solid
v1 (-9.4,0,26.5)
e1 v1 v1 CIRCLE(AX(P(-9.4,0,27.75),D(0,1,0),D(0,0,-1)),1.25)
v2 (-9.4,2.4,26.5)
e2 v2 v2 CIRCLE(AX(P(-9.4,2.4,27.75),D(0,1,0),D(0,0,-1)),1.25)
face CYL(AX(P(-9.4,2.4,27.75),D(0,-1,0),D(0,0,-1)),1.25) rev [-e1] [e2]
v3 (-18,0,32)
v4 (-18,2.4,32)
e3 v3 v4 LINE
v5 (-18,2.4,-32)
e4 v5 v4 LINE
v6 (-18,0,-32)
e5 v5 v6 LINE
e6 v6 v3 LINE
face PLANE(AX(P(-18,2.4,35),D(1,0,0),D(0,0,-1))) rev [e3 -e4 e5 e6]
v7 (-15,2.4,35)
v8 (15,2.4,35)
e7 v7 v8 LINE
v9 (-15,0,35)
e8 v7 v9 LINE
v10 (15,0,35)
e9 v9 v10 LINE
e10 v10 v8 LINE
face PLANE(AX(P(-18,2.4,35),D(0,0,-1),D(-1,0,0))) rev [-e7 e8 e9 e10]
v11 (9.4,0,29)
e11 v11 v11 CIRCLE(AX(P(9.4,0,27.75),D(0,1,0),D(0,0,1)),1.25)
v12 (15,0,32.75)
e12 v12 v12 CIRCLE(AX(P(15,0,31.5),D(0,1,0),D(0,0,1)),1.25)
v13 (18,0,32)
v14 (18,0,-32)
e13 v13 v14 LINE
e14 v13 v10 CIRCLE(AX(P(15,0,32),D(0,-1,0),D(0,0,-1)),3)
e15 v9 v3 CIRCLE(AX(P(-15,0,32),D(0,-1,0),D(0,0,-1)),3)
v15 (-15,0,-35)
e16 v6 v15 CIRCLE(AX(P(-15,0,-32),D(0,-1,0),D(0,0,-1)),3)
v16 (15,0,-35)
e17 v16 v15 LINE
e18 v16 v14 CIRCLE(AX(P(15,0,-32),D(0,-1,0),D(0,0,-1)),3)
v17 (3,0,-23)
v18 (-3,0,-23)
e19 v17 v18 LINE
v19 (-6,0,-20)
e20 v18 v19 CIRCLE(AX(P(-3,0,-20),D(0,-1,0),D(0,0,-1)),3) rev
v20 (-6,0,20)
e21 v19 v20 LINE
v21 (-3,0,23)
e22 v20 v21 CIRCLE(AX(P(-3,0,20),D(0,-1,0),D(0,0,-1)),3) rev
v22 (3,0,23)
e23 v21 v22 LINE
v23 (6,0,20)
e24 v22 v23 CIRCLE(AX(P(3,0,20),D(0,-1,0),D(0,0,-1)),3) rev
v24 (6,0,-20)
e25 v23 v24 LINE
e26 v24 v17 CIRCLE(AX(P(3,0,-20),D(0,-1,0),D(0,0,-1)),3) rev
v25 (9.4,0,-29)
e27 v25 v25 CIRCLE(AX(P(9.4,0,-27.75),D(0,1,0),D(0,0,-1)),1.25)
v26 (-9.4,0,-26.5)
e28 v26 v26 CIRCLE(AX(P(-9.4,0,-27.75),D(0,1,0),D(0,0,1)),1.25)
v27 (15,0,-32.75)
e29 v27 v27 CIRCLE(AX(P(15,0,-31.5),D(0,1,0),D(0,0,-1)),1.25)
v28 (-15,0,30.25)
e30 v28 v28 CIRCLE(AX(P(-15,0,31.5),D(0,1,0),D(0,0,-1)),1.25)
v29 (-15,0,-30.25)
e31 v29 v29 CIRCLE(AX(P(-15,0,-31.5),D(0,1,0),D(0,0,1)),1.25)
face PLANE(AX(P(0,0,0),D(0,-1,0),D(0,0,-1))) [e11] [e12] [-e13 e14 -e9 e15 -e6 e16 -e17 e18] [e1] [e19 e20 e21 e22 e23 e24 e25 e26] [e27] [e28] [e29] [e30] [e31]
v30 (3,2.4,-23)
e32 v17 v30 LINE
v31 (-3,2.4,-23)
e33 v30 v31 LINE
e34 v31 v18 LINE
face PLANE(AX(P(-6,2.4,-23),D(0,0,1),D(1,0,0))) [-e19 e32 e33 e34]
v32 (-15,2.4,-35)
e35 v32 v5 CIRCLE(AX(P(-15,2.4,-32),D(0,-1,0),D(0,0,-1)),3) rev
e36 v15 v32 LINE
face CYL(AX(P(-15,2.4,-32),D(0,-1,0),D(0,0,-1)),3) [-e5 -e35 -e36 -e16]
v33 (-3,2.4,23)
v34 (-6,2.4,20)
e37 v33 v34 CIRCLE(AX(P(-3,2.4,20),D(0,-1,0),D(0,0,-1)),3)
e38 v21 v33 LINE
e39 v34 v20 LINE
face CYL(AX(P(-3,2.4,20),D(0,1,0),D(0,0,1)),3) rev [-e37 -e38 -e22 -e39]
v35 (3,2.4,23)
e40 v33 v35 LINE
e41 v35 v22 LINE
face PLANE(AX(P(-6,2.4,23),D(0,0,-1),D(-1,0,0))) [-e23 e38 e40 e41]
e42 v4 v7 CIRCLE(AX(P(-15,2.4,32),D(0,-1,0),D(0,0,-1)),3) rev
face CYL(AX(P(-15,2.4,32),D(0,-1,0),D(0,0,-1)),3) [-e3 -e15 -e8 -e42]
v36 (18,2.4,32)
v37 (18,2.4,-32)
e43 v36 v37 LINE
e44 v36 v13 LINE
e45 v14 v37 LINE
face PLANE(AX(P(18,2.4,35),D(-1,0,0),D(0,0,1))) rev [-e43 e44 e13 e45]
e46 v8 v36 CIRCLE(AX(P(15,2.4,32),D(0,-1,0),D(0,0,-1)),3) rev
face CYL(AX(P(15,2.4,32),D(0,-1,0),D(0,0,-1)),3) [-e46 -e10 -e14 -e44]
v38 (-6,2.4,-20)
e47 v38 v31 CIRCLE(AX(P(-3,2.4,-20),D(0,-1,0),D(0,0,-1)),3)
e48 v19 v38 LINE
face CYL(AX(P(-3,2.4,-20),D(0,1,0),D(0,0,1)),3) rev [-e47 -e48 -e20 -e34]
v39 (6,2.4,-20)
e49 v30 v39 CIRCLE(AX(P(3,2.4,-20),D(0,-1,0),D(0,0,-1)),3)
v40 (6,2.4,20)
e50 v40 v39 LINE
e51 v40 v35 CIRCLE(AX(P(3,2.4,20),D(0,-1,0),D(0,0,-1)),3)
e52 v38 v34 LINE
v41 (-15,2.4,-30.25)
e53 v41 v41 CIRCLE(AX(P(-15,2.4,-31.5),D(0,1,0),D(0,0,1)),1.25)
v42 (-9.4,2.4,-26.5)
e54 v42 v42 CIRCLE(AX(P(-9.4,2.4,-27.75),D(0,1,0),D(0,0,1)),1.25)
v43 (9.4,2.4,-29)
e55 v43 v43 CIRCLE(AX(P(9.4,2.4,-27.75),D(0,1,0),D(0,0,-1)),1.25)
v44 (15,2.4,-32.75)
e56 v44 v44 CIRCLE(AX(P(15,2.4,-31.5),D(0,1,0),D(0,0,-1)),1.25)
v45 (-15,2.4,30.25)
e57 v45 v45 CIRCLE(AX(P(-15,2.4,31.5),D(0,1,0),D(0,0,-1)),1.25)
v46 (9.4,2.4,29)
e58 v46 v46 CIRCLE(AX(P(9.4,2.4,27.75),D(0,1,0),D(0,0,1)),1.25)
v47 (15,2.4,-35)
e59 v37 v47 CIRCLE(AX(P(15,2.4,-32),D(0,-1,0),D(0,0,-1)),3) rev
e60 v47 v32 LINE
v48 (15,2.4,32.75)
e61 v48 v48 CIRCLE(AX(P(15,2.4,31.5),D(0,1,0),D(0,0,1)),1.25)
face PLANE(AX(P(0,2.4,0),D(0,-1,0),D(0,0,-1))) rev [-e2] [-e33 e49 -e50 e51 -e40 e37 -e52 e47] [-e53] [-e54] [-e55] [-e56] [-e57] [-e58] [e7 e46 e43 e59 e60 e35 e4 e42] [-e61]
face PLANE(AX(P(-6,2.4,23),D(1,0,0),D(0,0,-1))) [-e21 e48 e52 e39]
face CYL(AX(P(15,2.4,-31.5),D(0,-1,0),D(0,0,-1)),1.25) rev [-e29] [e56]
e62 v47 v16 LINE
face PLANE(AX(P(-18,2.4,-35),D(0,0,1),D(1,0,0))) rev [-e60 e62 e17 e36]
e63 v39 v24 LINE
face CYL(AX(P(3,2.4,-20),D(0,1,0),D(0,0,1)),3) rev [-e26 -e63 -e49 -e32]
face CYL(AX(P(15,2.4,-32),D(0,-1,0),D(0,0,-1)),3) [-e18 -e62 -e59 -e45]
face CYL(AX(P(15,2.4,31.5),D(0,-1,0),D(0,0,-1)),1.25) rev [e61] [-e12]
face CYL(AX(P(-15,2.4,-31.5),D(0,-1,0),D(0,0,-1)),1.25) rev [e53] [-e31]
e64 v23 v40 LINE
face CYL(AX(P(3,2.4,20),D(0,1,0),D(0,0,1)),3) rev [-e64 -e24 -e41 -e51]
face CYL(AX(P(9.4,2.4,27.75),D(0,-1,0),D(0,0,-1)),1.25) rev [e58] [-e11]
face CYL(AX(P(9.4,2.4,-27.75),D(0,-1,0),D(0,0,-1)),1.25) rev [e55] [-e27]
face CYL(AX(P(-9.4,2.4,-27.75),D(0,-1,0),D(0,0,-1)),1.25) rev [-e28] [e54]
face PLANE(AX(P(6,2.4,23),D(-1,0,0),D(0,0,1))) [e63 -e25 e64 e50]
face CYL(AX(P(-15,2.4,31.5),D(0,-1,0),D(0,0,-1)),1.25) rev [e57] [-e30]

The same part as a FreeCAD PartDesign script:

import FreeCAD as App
import Part
import Sketcher
from FreeCAD import Vector


def edges_at(feature, points):
    """Names of the edges that pass closest to the given points."""
    edges = feature.Shape.Edges
    near = lambda p: min(range(len(edges)), key=lambda i: edges[i].distToShape(Part.Vertex(*p))[0])
    return sorted({f"Edge{near(p) + 1}" for p in points})


def add_polygon(sketch, points):
    """Adds a closed chain of lines whose ends are joined by coincident constraints."""
    first, n = sketch.GeometryCount, len(points)
    for a, b in zip(points, points[1:] + points[:1]):
        sketch.addGeometry(Part.LineSegment(App.Vector(*a, 0), App.Vector(*b, 0)), False)
    for i in range(n):
        sketch.addConstraint(Sketcher.Constraint("Coincident", first + i, 2, first + (i + 1) % n, 1))

doc = App.newDocument("Part")
body = doc.addObject("PartDesign::Body", "Body")

# Sketch on XZ plane
sketch1 = doc.addObject("Sketcher::SketchObject", "Sketch")
body.addObject(sketch1)
sketch1.AttachmentSupport = (doc.XZ_Plane, [""])
sketch1.MapMode = "FlatFace"
add_polygon(sketch1, [(-18, -35), (-18, 35), (18, 35), (18, -35)])  # lines 0-3
sketch1.addGeometry(Part.Circle(Vector(-15, 31.5, 0), Vector(0, 0, 1), 1.2), False)  # 4
sketch1.addGeometry(Part.Circle(Vector(-9.4, 27.8, 0), Vector(0, 0, 1), 1.2), False)  # 5
sketch1.addGeometry(Part.Circle(Vector(9.4, 27.8, 0), Vector(0, 0, 1), 1.2), False)  # 6
sketch1.addGeometry(Part.Circle(Vector(15, 31.5, 0), Vector(0, 0, 1), 1.2), False)  # 7
sketch1.addGeometry(Part.Circle(Vector(-15, -31.5, 0), Vector(0, 0, 1), 1.2), False)  # 8
sketch1.addGeometry(Part.Circle(Vector(-9.4, -27.8, 0), Vector(0, 0, 1), 1.2), False)  # 9
add_polygon(sketch1, [(6, 23), (-6, 23), (-6, -23), (6, -23)])  # lines 10-13
sketch1.addGeometry(Part.Circle(Vector(9.4, -27.8, 0), Vector(0, 0, 1), 1.2), False)  # 14
sketch1.addGeometry(Part.Circle(Vector(15, -31.5, 0), Vector(0, 0, 1), 1.2), False)  # 15
sketch1.addConstraint(Sketcher.Constraint("Vertical", 0))
sketch1.addConstraint(Sketcher.Constraint("Horizontal", 1))
sketch1.addConstraint(Sketcher.Constraint("Vertical", 2))
sketch1.addConstraint(Sketcher.Constraint("Horizontal", 3))
sketch1.addConstraint(Sketcher.Constraint("Horizontal", 10))
sketch1.addConstraint(Sketcher.Constraint("Vertical", 11))
sketch1.addConstraint(Sketcher.Constraint("Horizontal", 12))
sketch1.addConstraint(Sketcher.Constraint("Vertical", 13))
sketch1.addConstraint(Sketcher.Constraint("Equal", 4, 5))
sketch1.addConstraint(Sketcher.Constraint("Equal", 5, 6))
sketch1.addConstraint(Sketcher.Constraint("Equal", 6, 7))
sketch1.addConstraint(Sketcher.Constraint("Equal", 7, 8))
sketch1.addConstraint(Sketcher.Constraint("Equal", 8, 9))
sketch1.addConstraint(Sketcher.Constraint("Equal", 9, 14))
sketch1.addConstraint(Sketcher.Constraint("Equal", 14, 15))
sketch1.addConstraint(Sketcher.Constraint("Symmetric", 7, 3, 8, 3, -1, 1))
sketch1.addConstraint(Sketcher.Constraint("Symmetric", 6, 3, 9, 3, -1, 1))
sketch1.addConstraint(Sketcher.Constraint("Symmetric", 5, 3, 14, 3, -1, 1))
sketch1.addConstraint(Sketcher.Constraint("Symmetric", 4, 3, 15, 3, -1, 1))
sketch1.addConstraint(Sketcher.Constraint("Symmetric", 0, 2, 2, 2, -1, 1))
sketch1.addConstraint(Sketcher.Constraint("Symmetric", 10, 2, 12, 2, -1, 1))
sketch1.addConstraint(Sketcher.Constraint("Symmetric", 5, 3, 6, 3, -2))
sketch1.addConstraint(Sketcher.Constraint("Symmetric", 4, 3, 7, 3, -2))
sketch1.addConstraint(Sketcher.Constraint("Diameter", 4, 2.5))
sketch1.addConstraint(Sketcher.Constraint("DistanceX", 1, 1, 1, 2, 36.0))
sketch1.addConstraint(Sketcher.Constraint("DistanceX", 10, 2, 10, 1, 12.0))
sketch1.addConstraint(Sketcher.Constraint("DistanceY", 0, 1, 0, 2, 70.0))
sketch1.addConstraint(Sketcher.Constraint("DistanceY", 11, 2, 11, 1, 46.0))
sketch1.addConstraint(Sketcher.Constraint("DistanceX", 4, 3, -1, 1, 15.0))
sketch1.addConstraint(Sketcher.Constraint("DistanceY", 8, 3, 4, 3, 63.0))
sketch1.addConstraint(Sketcher.Constraint("DistanceX", 5, 3, -1, 1, 9.4))
sketch1.addConstraint(Sketcher.Constraint("DistanceY", 9, 3, 5, 3, 55.5))
pad1 = doc.addObject("PartDesign::Pad", "Pad")
body.addObject(pad1)
pad1.Profile = sketch1
pad1.Length = 2.4
pad1.Reversed = True
doc.recompute()

fillet = doc.addObject("PartDesign::Fillet", "Fillet")
body.addObject(fillet)
fillet.Base = (pad1, edges_at(pad1, [
    (-6, 1.2, 23),
    (6, 1.2, 23),
    (6, 1.2, -23),
    (-6, 1.2, -23),
    (18, 1.2, 35),
    (-18, 1.2, 35),
    (-18, 1.2, -35),
    (18, 1.2, -35),
]))
fillet.Radius = 3

doc.recompute()
